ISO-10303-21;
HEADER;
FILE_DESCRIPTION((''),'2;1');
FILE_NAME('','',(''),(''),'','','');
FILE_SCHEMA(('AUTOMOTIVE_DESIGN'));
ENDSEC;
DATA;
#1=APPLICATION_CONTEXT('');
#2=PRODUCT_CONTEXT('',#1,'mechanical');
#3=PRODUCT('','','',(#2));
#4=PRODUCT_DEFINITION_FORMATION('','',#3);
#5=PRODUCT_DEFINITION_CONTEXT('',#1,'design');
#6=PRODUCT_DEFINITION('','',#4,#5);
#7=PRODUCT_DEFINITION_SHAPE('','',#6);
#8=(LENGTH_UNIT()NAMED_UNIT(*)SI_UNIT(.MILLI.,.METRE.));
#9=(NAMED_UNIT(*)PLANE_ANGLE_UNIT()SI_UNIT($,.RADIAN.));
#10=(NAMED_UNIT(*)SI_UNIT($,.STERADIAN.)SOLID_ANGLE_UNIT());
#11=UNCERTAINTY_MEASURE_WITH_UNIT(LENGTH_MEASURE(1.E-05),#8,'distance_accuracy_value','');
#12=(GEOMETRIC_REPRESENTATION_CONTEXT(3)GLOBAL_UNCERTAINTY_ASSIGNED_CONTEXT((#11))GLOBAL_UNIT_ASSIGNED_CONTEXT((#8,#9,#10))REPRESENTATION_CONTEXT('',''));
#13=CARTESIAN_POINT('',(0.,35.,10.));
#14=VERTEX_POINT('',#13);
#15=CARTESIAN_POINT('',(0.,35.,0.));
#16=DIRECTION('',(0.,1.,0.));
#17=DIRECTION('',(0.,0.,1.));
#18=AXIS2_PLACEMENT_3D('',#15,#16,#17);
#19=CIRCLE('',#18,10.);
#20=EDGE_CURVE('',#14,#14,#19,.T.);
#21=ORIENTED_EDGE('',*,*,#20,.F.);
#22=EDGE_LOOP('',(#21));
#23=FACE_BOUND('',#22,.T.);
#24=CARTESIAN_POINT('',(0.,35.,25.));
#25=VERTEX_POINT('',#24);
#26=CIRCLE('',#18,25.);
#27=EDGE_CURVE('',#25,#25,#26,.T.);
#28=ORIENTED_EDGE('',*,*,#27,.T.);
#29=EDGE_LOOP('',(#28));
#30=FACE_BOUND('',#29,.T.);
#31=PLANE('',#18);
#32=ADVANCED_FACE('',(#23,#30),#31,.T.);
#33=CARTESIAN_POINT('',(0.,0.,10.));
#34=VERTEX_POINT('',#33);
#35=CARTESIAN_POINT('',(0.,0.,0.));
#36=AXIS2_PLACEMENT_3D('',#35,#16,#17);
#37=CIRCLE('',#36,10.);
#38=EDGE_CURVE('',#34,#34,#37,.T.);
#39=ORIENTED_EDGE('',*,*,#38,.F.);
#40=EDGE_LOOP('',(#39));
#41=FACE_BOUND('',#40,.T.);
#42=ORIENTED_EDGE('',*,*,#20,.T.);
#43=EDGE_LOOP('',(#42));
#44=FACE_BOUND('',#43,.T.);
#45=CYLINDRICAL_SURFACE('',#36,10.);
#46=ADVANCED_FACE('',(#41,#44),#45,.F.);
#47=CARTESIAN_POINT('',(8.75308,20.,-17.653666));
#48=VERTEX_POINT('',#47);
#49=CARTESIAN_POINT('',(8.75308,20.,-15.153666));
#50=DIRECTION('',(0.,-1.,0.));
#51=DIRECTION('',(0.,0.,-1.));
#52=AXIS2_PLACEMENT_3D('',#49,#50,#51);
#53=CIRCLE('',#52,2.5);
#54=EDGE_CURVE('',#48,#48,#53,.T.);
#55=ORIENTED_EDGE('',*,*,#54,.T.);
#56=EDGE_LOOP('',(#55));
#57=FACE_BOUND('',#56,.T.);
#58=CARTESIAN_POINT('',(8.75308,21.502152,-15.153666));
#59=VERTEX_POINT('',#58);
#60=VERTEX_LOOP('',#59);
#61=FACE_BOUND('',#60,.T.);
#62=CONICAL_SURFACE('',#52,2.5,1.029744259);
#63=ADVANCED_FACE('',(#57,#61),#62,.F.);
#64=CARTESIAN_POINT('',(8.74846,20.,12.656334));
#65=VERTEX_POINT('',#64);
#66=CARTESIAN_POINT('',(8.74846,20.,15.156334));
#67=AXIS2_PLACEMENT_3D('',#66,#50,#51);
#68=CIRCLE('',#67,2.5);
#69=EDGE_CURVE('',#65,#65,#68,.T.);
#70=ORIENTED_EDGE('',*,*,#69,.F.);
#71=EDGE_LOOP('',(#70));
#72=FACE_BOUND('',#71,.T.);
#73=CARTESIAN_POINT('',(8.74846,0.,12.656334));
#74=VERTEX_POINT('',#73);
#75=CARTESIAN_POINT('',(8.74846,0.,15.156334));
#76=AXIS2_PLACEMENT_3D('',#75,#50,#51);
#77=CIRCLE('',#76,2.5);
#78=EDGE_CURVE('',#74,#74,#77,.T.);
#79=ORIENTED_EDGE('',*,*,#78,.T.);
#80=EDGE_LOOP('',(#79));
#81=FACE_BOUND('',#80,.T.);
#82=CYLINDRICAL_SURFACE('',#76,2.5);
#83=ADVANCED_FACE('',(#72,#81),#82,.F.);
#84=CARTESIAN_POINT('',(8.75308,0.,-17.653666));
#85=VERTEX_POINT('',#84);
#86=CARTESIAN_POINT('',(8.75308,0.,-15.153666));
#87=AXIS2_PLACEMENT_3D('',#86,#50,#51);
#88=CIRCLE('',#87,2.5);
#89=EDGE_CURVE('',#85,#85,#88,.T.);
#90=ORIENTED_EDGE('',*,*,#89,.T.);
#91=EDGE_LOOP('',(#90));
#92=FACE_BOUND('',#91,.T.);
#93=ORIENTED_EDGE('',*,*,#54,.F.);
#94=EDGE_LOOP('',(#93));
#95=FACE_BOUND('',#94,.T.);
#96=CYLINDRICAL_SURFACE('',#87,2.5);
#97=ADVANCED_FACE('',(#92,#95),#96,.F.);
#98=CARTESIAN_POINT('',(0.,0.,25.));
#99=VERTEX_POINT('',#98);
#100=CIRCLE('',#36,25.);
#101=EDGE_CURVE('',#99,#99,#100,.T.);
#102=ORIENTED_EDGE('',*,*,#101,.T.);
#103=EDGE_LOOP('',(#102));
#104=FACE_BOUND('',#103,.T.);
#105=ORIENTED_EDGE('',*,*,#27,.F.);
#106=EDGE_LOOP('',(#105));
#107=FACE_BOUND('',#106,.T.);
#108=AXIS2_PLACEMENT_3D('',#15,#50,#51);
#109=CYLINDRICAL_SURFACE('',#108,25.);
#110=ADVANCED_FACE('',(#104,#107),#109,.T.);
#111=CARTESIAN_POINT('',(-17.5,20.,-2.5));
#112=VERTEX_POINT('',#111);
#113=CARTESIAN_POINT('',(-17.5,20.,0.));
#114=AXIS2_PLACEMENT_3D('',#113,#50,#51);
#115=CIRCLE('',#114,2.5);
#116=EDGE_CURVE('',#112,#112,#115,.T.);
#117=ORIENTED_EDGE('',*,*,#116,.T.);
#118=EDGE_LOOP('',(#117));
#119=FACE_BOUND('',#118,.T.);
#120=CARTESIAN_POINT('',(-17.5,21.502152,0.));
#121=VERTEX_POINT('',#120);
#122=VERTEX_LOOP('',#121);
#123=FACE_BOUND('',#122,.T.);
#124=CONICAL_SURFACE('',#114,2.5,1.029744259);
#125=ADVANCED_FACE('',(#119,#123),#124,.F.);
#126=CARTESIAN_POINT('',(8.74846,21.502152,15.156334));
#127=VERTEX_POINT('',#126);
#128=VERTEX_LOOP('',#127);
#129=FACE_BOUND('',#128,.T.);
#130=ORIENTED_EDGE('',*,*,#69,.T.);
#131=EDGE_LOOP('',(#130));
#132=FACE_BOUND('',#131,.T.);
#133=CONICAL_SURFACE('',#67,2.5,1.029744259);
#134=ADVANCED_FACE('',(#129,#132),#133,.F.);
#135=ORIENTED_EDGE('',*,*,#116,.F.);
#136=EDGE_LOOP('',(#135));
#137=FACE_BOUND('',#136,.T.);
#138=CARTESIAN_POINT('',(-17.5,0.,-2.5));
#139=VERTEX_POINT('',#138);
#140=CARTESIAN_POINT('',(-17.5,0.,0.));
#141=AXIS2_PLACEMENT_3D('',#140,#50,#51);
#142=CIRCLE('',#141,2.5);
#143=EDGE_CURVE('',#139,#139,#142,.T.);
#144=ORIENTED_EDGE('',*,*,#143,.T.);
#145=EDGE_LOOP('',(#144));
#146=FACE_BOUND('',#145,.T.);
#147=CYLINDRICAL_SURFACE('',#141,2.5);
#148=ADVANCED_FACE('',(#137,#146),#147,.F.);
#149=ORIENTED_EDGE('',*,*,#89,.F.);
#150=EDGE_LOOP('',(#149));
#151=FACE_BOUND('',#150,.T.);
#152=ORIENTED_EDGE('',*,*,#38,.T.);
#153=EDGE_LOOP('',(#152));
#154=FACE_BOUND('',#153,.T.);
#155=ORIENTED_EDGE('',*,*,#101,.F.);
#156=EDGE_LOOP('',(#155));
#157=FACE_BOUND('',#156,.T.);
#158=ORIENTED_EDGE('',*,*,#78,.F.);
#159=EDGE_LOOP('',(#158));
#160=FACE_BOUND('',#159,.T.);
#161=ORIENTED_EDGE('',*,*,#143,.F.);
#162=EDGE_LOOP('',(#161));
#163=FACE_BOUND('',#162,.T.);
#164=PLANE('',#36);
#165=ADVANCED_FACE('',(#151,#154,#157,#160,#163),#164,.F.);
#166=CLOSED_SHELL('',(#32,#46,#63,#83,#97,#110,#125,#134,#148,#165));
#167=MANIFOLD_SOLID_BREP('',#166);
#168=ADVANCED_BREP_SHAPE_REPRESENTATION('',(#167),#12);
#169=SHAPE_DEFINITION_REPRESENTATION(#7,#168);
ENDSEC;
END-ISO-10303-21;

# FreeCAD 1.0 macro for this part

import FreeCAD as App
import Part
import Sketcher

doc = App.newDocument("Part")
body = doc.addObject("PartDesign::Body", "Body")

# Sketch on XZ plane
sketch1 = doc.addObject("Sketcher::SketchObject", "Sketch")
body.addObject(sketch1)
sketch1.AttachmentSupport = (doc.XZ_Plane, [""])
sketch1.MapMode = "FlatFace"
sketch1.addGeometry(Part.Circle(App.Vector(0, 0, 0), App.Vector(0, 0, 1), 25), False)
sketch1.addConstraint([
    Sketcher.Constraint("Coincident", 0, 3, -1, 1),
    Sketcher.Constraint("Diameter", 0, 50.0),
])
pad1 = doc.addObject("PartDesign::Pad", "Pad")
body.addObject(pad1)
pad1.Profile = sketch1
pad1.Length = 35
pad1.Reversed = True

# Sketch on XZ plane
sketch2 = doc.addObject("Sketcher::SketchObject", "Sketch001")
body.addObject(sketch2)
sketch2.AttachmentSupport = (doc.XZ_Plane, [""])
sketch2.MapMode = "FlatFace"
sketch2.AttachmentOffset = App.Placement(App.Vector(0, 0, -35), App.Rotation())
sketch2.addGeometry(Part.Circle(App.Vector(0, 0, 0), App.Vector(0, 0, 1), 10), False)
sketch2.addConstraint([
    Sketcher.Constraint("Coincident", 0, 3, -1, 1),
    Sketcher.Constraint("Diameter", 0, 20.0),
])
pocket1 = doc.addObject("PartDesign::Pocket", "Pocket")
body.addObject(pocket1)
pocket1.Profile = sketch2
pocket1.Length = 35
pocket1.Reversed = True

# Sketch on XZ plane
sketch3 = doc.addObject("Sketcher::SketchObject", "Sketch002")
body.addObject(sketch3)
sketch3.AttachmentSupport = (doc.XZ_Plane, [""])
sketch3.MapMode = "FlatFace"
sketch3.addGeometry([
    Part.Circle(App.Vector(-17.5, 0, 0), App.Vector(0, 0, 1), 2.5),
    Part.Circle(App.Vector(8.7, 15.2, 0), App.Vector(0, 0, 1), 2.5),
    Part.Circle(App.Vector(8.8, -15.2, 0), App.Vector(0, 0, 1), 2.5),
], False)
sketch3.addConstraint([
    Sketcher.Constraint("Equal", 0, 1),
    Sketcher.Constraint("Equal", 1, 2),
    Sketcher.Constraint("PointOnObject", 0, 3, -1),
    Sketcher.Constraint("Diameter", 0, 5.0),
    Sketcher.Constraint("DistanceX", 0, 3, -1, 1, 17.5),
    Sketcher.Constraint("DistanceY", 2, 3, 1, 3, 30.31),
    Sketcher.Constraint("DistanceX", -1, 1, 1, 3, 8.74846),
    Sketcher.Constraint("DistanceX", -1, 1, 2, 3, 8.75308),
    Sketcher.Constraint("DistanceY", -1, 1, 1, 3, 15.156334),
])
doc.recompute()
hole = doc.addObject("PartDesign::Hole", "Hole")
body.addObject(hole)
hole.Profile = sketch3
hole.ThreadType = "None"
hole.Diameter = 5
hole.DepthType = "Dimension"
hole.Depth = 20
hole.DrillPoint = "Angled"
hole.DrillPointAngle = 118

doc.recompute()
